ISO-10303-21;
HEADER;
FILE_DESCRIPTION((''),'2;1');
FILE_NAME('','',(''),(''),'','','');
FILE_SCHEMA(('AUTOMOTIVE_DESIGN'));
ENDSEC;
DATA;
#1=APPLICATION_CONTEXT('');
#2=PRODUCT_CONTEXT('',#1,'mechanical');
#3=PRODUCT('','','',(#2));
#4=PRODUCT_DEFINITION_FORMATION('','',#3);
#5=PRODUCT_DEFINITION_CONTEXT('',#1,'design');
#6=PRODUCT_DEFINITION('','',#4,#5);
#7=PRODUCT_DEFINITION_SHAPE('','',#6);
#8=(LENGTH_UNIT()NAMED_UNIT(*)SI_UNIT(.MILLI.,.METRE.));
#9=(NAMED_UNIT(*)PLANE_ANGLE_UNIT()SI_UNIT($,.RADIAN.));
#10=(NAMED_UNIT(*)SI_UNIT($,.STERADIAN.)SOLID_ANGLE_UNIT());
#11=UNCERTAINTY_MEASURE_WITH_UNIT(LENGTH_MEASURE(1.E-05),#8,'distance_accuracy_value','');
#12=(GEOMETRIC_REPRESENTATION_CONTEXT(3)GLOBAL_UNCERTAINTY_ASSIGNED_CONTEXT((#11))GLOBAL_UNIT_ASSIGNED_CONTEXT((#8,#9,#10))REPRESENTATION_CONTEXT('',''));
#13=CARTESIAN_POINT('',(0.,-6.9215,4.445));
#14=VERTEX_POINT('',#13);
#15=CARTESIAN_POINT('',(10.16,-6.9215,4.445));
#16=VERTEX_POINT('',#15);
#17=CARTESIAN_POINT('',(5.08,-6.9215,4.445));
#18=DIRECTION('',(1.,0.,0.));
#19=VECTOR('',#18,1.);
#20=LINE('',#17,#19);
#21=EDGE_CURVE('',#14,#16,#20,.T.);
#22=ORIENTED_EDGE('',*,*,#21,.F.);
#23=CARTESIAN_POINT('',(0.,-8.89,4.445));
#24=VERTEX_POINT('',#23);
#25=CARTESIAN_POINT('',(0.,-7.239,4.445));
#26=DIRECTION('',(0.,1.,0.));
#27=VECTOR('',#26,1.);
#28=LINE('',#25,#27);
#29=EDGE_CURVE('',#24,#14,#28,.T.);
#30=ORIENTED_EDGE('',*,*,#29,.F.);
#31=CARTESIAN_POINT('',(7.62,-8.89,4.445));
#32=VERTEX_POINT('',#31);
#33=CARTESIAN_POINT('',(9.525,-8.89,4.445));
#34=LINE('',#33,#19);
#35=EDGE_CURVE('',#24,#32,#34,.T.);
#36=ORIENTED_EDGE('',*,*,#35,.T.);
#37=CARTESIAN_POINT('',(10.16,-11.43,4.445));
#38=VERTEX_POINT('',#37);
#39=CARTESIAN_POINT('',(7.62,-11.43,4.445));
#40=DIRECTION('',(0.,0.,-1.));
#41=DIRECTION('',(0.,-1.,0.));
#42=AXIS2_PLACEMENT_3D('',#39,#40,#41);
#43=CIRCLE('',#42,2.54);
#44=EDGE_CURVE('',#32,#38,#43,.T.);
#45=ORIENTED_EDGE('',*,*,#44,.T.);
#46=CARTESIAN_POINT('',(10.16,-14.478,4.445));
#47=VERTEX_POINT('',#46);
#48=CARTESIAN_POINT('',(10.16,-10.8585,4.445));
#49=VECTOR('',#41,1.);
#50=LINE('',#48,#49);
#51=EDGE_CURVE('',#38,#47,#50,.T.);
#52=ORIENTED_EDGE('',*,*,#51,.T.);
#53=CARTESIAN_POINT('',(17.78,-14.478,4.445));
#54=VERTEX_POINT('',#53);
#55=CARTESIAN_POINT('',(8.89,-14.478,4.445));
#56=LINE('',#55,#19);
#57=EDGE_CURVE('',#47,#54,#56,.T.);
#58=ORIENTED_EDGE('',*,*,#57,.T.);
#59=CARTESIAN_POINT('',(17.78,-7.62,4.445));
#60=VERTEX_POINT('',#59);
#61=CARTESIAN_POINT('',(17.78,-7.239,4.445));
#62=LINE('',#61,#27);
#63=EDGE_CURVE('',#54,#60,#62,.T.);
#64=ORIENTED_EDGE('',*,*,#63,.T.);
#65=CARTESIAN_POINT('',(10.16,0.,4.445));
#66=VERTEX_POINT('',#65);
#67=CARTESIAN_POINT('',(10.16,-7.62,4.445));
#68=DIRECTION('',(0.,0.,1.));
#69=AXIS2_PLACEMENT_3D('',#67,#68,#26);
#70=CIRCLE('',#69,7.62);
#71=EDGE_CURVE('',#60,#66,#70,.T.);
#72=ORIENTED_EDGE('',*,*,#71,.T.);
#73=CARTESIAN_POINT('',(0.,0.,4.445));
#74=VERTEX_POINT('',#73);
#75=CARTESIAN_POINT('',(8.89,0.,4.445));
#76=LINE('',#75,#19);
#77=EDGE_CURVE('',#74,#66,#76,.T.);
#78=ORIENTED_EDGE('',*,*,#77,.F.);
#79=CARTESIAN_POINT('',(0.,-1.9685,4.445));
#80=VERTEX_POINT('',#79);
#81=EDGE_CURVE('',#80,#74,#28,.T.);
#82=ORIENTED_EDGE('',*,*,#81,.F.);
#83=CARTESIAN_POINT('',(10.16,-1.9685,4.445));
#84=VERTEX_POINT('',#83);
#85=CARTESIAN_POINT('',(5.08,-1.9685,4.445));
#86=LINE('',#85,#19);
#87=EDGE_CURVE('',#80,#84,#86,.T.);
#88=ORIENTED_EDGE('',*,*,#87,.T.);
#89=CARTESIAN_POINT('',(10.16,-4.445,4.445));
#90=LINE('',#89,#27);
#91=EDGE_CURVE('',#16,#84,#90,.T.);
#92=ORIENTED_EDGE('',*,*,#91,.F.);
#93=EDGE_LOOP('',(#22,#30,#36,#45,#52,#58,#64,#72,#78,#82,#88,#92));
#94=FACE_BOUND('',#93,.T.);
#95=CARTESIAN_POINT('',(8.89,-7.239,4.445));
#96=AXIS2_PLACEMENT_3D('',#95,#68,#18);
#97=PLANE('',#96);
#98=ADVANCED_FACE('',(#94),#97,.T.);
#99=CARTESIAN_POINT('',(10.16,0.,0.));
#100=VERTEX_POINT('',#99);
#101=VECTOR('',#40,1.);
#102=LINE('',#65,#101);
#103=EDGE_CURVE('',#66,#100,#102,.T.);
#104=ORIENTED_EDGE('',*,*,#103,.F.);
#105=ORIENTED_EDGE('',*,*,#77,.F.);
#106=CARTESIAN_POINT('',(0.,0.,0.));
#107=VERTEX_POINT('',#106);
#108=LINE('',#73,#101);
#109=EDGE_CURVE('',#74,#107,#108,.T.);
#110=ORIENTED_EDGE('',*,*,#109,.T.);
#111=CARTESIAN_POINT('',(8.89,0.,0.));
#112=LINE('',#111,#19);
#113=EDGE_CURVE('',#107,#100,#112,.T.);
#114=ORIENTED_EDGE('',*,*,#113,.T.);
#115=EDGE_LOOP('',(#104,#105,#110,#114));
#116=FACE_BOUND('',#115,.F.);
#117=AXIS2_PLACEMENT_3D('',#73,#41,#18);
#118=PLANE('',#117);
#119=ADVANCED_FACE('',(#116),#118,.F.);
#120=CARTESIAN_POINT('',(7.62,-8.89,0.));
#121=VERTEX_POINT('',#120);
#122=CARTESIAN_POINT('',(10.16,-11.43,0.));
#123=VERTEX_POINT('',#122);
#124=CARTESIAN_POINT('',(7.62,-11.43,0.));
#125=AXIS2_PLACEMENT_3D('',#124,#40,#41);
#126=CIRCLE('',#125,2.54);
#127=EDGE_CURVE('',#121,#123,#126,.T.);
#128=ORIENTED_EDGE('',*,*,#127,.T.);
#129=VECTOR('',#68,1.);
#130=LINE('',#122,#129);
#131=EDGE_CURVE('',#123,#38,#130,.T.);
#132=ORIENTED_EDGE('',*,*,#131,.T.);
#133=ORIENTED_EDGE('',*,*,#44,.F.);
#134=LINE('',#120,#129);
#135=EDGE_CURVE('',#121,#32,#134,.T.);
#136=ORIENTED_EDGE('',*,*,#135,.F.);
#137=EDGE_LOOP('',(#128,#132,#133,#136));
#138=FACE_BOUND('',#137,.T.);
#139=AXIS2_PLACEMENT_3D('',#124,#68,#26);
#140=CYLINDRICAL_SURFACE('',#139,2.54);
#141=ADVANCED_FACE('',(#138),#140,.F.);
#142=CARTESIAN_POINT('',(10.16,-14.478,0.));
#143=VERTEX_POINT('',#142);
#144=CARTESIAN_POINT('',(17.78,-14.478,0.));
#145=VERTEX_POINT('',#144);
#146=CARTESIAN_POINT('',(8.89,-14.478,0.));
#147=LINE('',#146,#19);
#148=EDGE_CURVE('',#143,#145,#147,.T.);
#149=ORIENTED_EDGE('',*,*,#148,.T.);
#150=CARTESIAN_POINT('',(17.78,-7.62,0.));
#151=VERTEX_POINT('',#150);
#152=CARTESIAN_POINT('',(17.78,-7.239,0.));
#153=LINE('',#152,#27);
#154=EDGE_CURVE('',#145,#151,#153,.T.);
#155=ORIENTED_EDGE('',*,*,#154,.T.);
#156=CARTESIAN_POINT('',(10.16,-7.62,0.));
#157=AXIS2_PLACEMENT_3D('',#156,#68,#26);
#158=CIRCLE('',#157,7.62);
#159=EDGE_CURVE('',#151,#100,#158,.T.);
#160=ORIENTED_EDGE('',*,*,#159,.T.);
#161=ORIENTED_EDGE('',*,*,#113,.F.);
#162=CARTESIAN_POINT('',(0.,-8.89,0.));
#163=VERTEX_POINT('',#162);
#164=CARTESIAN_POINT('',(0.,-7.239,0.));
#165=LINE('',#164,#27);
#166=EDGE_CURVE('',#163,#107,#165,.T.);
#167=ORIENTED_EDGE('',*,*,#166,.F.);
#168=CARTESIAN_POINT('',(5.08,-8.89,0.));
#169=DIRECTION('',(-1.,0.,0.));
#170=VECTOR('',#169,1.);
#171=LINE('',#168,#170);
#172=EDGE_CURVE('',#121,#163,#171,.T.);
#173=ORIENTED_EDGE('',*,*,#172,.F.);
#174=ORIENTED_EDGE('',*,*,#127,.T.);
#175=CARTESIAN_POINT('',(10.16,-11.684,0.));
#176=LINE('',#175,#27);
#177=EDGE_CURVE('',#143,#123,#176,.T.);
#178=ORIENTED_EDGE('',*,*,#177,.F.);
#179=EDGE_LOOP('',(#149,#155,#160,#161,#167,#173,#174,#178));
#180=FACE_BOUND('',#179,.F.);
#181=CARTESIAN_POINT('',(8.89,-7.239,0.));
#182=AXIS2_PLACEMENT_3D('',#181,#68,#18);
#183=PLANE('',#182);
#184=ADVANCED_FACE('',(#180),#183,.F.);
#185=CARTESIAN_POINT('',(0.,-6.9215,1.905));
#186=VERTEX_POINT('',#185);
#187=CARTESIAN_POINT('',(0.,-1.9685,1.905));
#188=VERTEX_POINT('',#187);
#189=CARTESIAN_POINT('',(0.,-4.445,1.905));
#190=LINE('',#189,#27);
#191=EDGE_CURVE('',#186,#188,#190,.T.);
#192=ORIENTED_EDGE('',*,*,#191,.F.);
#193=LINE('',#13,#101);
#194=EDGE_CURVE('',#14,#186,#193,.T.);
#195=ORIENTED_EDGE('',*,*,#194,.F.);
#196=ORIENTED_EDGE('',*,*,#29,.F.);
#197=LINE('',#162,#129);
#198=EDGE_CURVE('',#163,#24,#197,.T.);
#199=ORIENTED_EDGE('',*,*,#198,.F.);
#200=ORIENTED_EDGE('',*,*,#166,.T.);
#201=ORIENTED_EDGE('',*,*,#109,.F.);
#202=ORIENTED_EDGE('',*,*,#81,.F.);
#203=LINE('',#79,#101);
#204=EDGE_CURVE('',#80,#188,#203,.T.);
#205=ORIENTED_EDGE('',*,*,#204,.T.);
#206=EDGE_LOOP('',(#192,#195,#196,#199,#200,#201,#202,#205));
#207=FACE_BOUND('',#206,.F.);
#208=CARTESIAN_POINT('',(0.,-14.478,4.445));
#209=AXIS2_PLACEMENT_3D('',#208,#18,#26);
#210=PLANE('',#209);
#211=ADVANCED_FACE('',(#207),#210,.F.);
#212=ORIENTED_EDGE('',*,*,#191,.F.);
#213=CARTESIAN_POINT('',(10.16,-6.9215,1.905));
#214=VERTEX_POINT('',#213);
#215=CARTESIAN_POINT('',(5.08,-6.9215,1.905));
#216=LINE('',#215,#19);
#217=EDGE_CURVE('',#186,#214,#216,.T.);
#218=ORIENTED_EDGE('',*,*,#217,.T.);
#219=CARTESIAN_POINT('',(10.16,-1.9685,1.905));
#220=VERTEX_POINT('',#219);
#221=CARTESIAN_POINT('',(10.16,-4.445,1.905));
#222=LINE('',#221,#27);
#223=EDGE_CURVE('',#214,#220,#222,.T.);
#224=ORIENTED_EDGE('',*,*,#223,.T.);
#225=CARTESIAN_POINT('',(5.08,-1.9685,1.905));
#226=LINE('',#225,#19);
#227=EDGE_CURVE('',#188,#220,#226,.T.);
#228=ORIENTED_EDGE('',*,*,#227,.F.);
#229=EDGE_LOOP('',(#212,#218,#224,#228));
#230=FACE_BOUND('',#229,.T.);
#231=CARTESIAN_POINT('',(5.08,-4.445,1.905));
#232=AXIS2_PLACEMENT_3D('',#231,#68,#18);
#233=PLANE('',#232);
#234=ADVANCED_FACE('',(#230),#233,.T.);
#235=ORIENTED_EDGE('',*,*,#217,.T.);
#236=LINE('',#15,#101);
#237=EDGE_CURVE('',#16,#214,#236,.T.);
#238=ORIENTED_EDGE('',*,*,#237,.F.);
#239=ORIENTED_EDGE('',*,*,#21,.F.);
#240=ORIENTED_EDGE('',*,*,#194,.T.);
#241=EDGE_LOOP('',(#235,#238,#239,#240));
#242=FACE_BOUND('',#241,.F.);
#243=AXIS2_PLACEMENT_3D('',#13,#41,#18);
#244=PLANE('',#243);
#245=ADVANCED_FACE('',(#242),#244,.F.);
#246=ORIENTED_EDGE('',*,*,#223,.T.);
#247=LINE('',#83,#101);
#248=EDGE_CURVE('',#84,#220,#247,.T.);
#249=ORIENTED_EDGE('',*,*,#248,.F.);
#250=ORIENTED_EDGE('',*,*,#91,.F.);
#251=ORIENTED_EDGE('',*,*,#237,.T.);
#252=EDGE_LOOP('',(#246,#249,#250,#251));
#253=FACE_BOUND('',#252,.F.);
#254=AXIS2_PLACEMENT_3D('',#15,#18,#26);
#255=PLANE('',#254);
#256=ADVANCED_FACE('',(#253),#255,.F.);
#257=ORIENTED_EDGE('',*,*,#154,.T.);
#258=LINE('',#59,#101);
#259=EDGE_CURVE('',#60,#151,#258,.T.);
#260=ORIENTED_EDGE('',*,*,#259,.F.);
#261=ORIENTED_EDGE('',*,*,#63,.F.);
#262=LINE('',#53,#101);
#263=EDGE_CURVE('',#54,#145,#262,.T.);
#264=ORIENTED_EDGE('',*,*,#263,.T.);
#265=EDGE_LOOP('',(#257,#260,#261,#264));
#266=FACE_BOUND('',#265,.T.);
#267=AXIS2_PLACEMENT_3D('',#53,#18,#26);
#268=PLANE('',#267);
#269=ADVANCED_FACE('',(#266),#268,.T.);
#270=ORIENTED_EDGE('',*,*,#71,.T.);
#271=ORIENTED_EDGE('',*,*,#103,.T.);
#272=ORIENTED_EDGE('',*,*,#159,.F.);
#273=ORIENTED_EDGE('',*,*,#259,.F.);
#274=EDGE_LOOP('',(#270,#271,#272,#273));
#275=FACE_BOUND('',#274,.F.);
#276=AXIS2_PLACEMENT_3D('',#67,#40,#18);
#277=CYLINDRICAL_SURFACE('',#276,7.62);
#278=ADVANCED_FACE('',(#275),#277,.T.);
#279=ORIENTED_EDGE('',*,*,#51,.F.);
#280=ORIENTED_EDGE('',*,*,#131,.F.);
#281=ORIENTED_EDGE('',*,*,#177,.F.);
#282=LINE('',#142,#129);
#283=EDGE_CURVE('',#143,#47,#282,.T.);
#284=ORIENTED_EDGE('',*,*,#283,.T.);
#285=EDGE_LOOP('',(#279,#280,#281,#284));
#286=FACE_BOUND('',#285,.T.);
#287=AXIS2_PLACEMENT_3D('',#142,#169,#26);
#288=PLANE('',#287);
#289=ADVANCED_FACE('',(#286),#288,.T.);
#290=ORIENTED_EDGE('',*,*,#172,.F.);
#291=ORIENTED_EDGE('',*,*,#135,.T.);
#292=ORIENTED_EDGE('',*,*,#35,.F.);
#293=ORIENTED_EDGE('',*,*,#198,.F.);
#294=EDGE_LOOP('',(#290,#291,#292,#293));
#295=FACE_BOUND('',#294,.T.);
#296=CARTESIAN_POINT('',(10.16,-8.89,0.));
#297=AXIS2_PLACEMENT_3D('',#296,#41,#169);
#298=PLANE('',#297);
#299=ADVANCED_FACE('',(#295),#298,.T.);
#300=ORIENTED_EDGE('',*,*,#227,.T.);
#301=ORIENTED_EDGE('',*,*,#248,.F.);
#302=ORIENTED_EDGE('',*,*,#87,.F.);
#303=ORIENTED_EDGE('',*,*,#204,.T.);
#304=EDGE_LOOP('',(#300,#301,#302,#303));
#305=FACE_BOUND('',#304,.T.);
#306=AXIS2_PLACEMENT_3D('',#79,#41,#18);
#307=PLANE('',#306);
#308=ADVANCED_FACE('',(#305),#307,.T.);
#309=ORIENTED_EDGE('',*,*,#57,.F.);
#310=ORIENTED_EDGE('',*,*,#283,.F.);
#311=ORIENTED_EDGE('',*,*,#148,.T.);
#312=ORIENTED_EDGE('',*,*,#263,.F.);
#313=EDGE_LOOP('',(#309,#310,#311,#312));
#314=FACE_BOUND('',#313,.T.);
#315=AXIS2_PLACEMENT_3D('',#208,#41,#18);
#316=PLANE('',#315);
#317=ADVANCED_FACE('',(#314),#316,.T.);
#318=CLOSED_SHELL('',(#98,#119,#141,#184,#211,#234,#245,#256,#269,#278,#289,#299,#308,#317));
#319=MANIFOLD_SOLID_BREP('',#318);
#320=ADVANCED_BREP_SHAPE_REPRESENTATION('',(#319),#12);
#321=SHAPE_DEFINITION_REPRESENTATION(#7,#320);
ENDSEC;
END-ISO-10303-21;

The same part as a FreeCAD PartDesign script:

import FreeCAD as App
import Part
import Sketcher
from FreeCAD import Vector
Q = App.Units.Quantity


def edges_at(feature, points):
    """Names of the edges that pass closest to the given points."""
    edges = feature.Shape.Edges
    near = lambda p: min(range(len(edges)), key=lambda i: edges[i].distToShape(Part.Vertex(*p))[0])
    return sorted({f"Edge{near(p) + 1}" for p in points})


def add_polygon(sketch, points):
    """Adds a closed chain of lines whose ends are joined by coincident constraints."""
    first, n = sketch.GeometryCount, len(points)
    for a, b in zip(points, points[1:] + points[:1]):
        sketch.addGeometry(Part.LineSegment(App.Vector(*a, 0), App.Vector(*b, 0)), False)
    for i in range(n):
        sketch.addConstraint(Sketcher.Constraint("Coincident", first + i, 2, first + (i + 1) % n, 1))

doc = App.newDocument("Part")
body = doc.addObject("PartDesign::Body", "Body")

sketch1 = body.newObject("Sketcher::SketchObject", "Sketch")
sketch1.AttachmentSupport = (doc.getObject("XY_Plane"), [""])
sketch1.MapMode = "FlatFace"
sketch1.AttachmentOffset = App.Placement(Vector(0, 0, 0.175 * 25.4), App.Rotation())
add_polygon(sketch1, [(0, 0), (0, -14.478), (17.78, -14.478), (17.78, 0)])
sketch1.addConstraint([
    Sketcher.Constraint("Vertical", 0),
    Sketcher.Constraint("Horizontal", 1),
    Sketcher.Constraint("Vertical", 2),
    Sketcher.Constraint("Horizontal", 3),
    Sketcher.Constraint("Coincident", 3, 2, -1, 1),
    Sketcher.Constraint("DistanceX", 1, 1, 1, 2, Q("0.7 in")),
    Sketcher.Constraint("DistanceY", 0, 2, 0, 1, Q("0.57 in")),
])
pad1 = body.newObject("PartDesign::Pad", "Pad")
pad1.Profile = sketch1
pad1.Length = Q("0.175 in")
pad1.Reversed = True

sketch2 = body.newObject("Sketcher::SketchObject", "Sketch001")
sketch2.AttachmentSupport = (doc.getObject("XY_Plane"), [""])
sketch2.MapMode = "FlatFace"
add_polygon(sketch2, [(10.16, -8.89), (10.16, -14.478), (0, -14.478), (0, -8.89)])
sketch2.addConstraint([
    Sketcher.Constraint("Vertical", 0),
    Sketcher.Constraint("Horizontal", 1),
    Sketcher.Constraint("Vertical", 2),
    Sketcher.Constraint("Horizontal", 3),
    Sketcher.Constraint("PointOnObject", 1, 2, -2),
    Sketcher.Constraint("DistanceX", 1, 2, 1, 1, Q("0.4 in")),
    Sketcher.Constraint("DistanceY", 0, 2, 0, 1, Q("0.22 in")),
    Sketcher.Constraint("DistanceY", 0, 2, -1, 1, Q("0.57 in")),
])
pocket1 = body.newObject("PartDesign::Pocket", "Pocket")
pocket1.Profile = sketch2
pocket1.Type = "ThroughAll"
pocket1.Reversed = True

sketch3 = body.newObject("Sketcher::SketchObject", "Sketch002")
sketch3.AttachmentSupport = (doc.getObject("XY_Plane"), [""])
sketch3.MapMode = "FlatFace"
sketch3.AttachmentOffset = App.Placement(Vector(0, 0, 0.175 * 25.4), App.Rotation())
add_polygon(sketch3, [(0, -1.9685), (0, -6.9215), (10.16, -6.9215), (10.16, -1.9685)])
sketch3.addConstraint([
    Sketcher.Constraint("Vertical", 0),
    Sketcher.Constraint("Horizontal", 1),
    Sketcher.Constraint("Vertical", 2),
    Sketcher.Constraint("Horizontal", 3),
    Sketcher.Constraint("PointOnObject", 0, 2, -2),
    Sketcher.Constraint("DistanceX", 1, 1, 1, 2, Q("0.4 in")),
    Sketcher.Constraint("DistanceY", 0, 2, 0, 1, Q("0.195 in")),
    Sketcher.Constraint("DistanceY", 0, 2, -1, 1, Q("0.2725 in")),
])
pocket2 = body.newObject("PartDesign::Pocket", "Pocket001")
pocket2.Profile = sketch3
pocket2.Length = Q("0.1 in")
doc.recompute()

fillet = body.newObject("PartDesign::Fillet", "Fillet")
fillet.Base = (pocket2, edges_at(pocket2, [(10.16, -8.89, 2.223)]))
fillet.Radius = Q("0.1 in")
doc.recompute()

fillet2 = body.newObject("PartDesign::Fillet", "Fillet001")
fillet2.Base = (fillet, edges_at(fillet, [(17.78, 0, 2.223)]))
fillet2.Radius = Q("0.3 in")

doc.recompute()
